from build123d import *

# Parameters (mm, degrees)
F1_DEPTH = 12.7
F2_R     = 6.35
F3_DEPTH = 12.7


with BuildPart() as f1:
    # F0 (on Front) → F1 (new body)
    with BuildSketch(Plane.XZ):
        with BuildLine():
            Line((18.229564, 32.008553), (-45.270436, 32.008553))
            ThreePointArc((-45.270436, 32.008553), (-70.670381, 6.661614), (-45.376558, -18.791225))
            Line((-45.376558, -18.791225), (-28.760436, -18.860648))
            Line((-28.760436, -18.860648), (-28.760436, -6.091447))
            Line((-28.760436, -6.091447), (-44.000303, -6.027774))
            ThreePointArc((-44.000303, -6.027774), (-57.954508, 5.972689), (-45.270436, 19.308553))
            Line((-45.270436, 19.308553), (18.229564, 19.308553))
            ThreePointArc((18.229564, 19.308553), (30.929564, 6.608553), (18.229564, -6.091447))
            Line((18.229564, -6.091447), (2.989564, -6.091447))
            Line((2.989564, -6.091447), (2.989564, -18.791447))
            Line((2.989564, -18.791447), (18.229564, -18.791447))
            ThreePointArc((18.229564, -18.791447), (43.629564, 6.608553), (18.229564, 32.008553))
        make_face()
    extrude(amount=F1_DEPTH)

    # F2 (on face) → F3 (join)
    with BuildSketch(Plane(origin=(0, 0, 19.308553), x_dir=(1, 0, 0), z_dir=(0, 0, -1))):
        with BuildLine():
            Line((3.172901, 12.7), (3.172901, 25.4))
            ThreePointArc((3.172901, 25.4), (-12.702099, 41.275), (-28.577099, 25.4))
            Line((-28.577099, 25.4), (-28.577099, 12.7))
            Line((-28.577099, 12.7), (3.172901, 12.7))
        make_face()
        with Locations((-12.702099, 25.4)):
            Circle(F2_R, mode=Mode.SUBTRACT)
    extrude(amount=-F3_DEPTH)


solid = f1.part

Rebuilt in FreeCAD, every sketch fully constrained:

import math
import FreeCAD as App
import Part
import Sketcher
from FreeCAD import Vector
Q = App.Units.Quantity

doc = App.newDocument("Part")
body = doc.addObject("PartDesign::Body", "Body")

sketch1 = doc.addObject("Sketcher::SketchObject", "Sketch")
body.addObject(sketch1)
sketch1.AttachmentSupport = (doc.XZ_Plane, [""])
sketch1.MapMode = "FlatFace"
sketch1.addGeometry(Part.LineSegment(Vector(18, 32, 0), Vector(-45, 32, 0)), False)
sketch1.addGeometry(Part.ArcOfCircle(Part.Circle(Vector(-45, 7, 0), Vector(0, 0, 1), 25), math.radians(90), math.radians(270)), False)
sketch1.addGeometry(Part.LineSegment(Vector(-45, -19, 0), Vector(-29, -19, 0)), False)
sketch1.addGeometry(Part.LineSegment(Vector(-29, -19, 0), Vector(-29, -6, 0)), False)
sketch1.addGeometry(Part.LineSegment(Vector(-29, -6, 0), Vector(-44, -6, 0)), False)
sketch1.addGeometry(Part.ArcOfCircle(Part.Circle(Vector(-45, 7, 0), Vector(0, 0, 1), 13), math.radians(90), math.radians(276)), False)
sketch1.addGeometry(Part.LineSegment(Vector(-45, 19, 0), Vector(18, 19, 0)), False)
sketch1.addGeometry(Part.ArcOfCircle(Part.Circle(Vector(18, 7, 0), Vector(0, 0, 1), 13), math.radians(-90), math.radians(90)), False)
sketch1.addGeometry(Part.LineSegment(Vector(18, -6, 0), Vector(3, -6, 0)), False)
sketch1.addGeometry(Part.LineSegment(Vector(3, -6, 0), Vector(3, -19, 0)), False)
sketch1.addGeometry(Part.LineSegment(Vector(3, -19, 0), Vector(18, -19, 0)), False)
sketch1.addGeometry(Part.ArcOfCircle(Part.Circle(Vector(18, 7, 0), Vector(0, 0, 1), 25), math.radians(-90), math.radians(90)), False)
sketch1.addConstraint(Sketcher.Constraint("Tangent", 0, 2, 1, 1))
sketch1.addConstraint(Sketcher.Constraint("Tangent", 1, 2, 2, 1))
sketch1.addConstraint(Sketcher.Constraint("Coincident", 2, 2, 3, 1))
sketch1.addConstraint(Sketcher.Constraint("Coincident", 3, 2, 4, 1))
sketch1.addConstraint(Sketcher.Constraint("Coincident", 4, 2, 5, 2))
sketch1.addConstraint(Sketcher.Constraint("Tangent", 5, 1, 6, 1))
sketch1.addConstraint(Sketcher.Constraint("Tangent", 6, 2, 7, 2))
sketch1.addConstraint(Sketcher.Constraint("Tangent", 7, 1, 8, 1))
sketch1.addConstraint(Sketcher.Constraint("Coincident", 8, 2, 9, 1))
sketch1.addConstraint(Sketcher.Constraint("Coincident", 9, 2, 10, 1))
sketch1.addConstraint(Sketcher.Constraint("Tangent", 10, 2, 11, 1))
sketch1.addConstraint(Sketcher.Constraint("Tangent", 11, 2, 0, 1))
sketch1.addConstraint(Sketcher.Constraint("Horizontal", 0))
sketch1.addConstraint(Sketcher.Constraint("Vertical", 3))
sketch1.addConstraint(Sketcher.Constraint("Horizontal", 6))
sketch1.addConstraint(Sketcher.Constraint("Horizontal", 8))
sketch1.addConstraint(Sketcher.Constraint("Vertical", 9))
sketch1.addConstraint(Sketcher.Constraint("Horizontal", 10))
sketch1.addConstraint(Sketcher.Constraint("Coincident", 5, 3, 1, 3))
sketch1.addConstraint(Sketcher.Constraint("Coincident", 11, 3, 7, 3))
sketch1.addConstraint(Sketcher.Constraint("Equal", 5, 7))
sketch1.addConstraint(Sketcher.Constraint("Parallel", 2, 4))
sketch1.addConstraint(Sketcher.Constraint("Horizontal", 3, 2, 7, 1))
sketch1.addConstraint(Sketcher.Constraint("Radius", 1, Q("1 in")))
sketch1.addConstraint(Sketcher.Constraint("Radius", 5, Q("0.5 in")))
sketch1.addConstraint(Sketcher.Constraint("DistanceX", 0, 2, 0, 1, Q("2.5 in")))
sketch1.addConstraint(Sketcher.Constraint("DistanceX", 8, 2, 8, 1, Q("0.6 in")))
sketch1.addConstraint(Sketcher.Constraint("Distance", 4, Q("0.6 in")))
sketch1.addConstraint(Sketcher.Constraint("DistanceX", 5, 3, 2, 2, Q("0.65 in")))
sketch1.addConstraint(Sketcher.Constraint("DistanceX", 1, 2, -1, 1, 45.376558))
sketch1.addConstraint(Sketcher.Constraint("DistanceY", 2, 2, -1, 1, 18.860648))
pad1 = doc.addObject("PartDesign::Pad", "Pad")
body.addObject(pad1)
pad1.Profile = sketch1
pad1.Length = Q("0.5 in")

sketch2 = doc.addObject("Sketcher::SketchObject", "Sketch001")
body.addObject(sketch2)
sketch2.AttachmentSupport = (doc.XY_Plane, [""])
sketch2.MapMode = "FlatFace"
sketch2.AttachmentOffset = App.Placement(Vector(0, 0, 19.308553), App.Rotation())
sketch2.addGeometry(Part.LineSegment(Vector(3, -13, 0), Vector(3, -25, 0)), False)
sketch2.addGeometry(Part.ArcOfCircle(Part.Circle(Vector(-13, -25, 0), Vector(0, 0, 1), 16), math.radians(180), math.radians(360)), False)
sketch2.addGeometry(Part.LineSegment(Vector(-29, -25, 0), Vector(-29, -13, 0)), False)
sketch2.addGeometry(Part.LineSegment(Vector(-29, -13, 0), Vector(3, -13, 0)), False)
sketch2.addGeometry(Part.Circle(Vector(-13, -25, 0), Vector(0, 0, 1), 6), False)
sketch2.addConstraint(Sketcher.Constraint("Tangent", 0, 2, 1, 2))
sketch2.addConstraint(Sketcher.Constraint("Tangent", 1, 1, 2, 1))
sketch2.addConstraint(Sketcher.Constraint("Coincident", 2, 2, 3, 1))
sketch2.addConstraint(Sketcher.Constraint("Coincident", 3, 2, 0, 1))
sketch2.addConstraint(Sketcher.Constraint("Vertical", 0))
sketch2.addConstraint(Sketcher.Constraint("Vertical", 2))
sketch2.addConstraint(Sketcher.Constraint("Horizontal", 3))
sketch2.addConstraint(Sketcher.Constraint("Coincident", 4, 3, 1, 3))
sketch2.addConstraint(Sketcher.Constraint("Diameter", 4, Q("0.5 in")))
sketch2.addConstraint(Sketcher.Constraint("DistanceY", 0, 2, 0, 1, Q("0.5 in")))
sketch2.addConstraint(Sketcher.Constraint("DistanceY", 1, 3, -1, 1, Q("1 in")))
sketch2.addConstraint(Sketcher.Constraint("Radius", 1, Q("0.625 in")))
sketch2.addConstraint(Sketcher.Constraint("DistanceX", 1, 3, -1, 1, 12.702099))
pad2 = doc.addObject("PartDesign::Pad", "Pad001")
body.addObject(pad2)
pad2.Profile = sketch2
pad2.Length = Q("0.5 in")

doc.recompute()
